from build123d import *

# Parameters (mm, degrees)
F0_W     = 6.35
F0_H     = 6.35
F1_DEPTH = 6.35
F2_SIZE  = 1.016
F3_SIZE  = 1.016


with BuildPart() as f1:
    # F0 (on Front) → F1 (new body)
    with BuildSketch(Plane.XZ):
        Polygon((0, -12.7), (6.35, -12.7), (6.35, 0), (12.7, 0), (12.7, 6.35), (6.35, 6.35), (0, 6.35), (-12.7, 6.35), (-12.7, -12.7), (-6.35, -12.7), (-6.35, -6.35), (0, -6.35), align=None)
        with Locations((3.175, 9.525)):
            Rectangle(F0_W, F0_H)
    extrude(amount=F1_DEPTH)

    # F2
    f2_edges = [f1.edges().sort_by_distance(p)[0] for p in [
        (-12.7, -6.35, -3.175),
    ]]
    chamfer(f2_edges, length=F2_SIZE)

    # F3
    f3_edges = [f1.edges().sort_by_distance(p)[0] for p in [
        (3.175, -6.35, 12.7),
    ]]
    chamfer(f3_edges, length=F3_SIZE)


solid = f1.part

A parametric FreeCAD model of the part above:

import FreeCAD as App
import Part
import Sketcher
Q = App.Units.Quantity


def edges_at(feature, points):
    """Names of the edges that pass closest to the given points."""
    edges = feature.Shape.Edges
    near = lambda p: min(range(len(edges)), key=lambda i: edges[i].distToShape(Part.Vertex(*p))[0])
    return sorted({f"Edge{near(p) + 1}" for p in points})


def add_polygon(sketch, points):
    """Adds a closed chain of lines whose ends are joined by coincident constraints."""
    first, n = sketch.GeometryCount, len(points)
    for a, b in zip(points, points[1:] + points[:1]):
        sketch.addGeometry(Part.LineSegment(App.Vector(*a, 0), App.Vector(*b, 0)), False)
    for i in range(n):
        sketch.addConstraint(Sketcher.Constraint("Coincident", first + i, 2, first + (i + 1) % n, 1))

doc = App.newDocument("Part")
body = doc.addObject("PartDesign::Body", "Body")

# Sketch on XZ plane
sketch1 = doc.addObject("Sketcher::SketchObject", "Sketch")
body.addObject(sketch1)
sketch1.AttachmentSupport = (doc.XZ_Plane, [""])
sketch1.MapMode = "FlatFace"
add_polygon(sketch1, [(0, -13), (6, -13), (6, 0), (13, 0), (13, 6), (6, 6), (6, 13), (0, 13), (0, 6), (-13, 6), (-13, -13), (-6, -13), (-6, -6), (0, -6)])  # lines 0-13
sketch1.addConstraint(Sketcher.Constraint("Horizontal", 0))
sketch1.addConstraint(Sketcher.Constraint("Vertical", 1))
sketch1.addConstraint(Sketcher.Constraint("Horizontal", 2))
sketch1.addConstraint(Sketcher.Constraint("Vertical", 3))
sketch1.addConstraint(Sketcher.Constraint("Horizontal", 4))
sketch1.addConstraint(Sketcher.Constraint("Vertical", 5))
sketch1.addConstraint(Sketcher.Constraint("Horizontal", 6))
sketch1.addConstraint(Sketcher.Constraint("Vertical", 7))
sketch1.addConstraint(Sketcher.Constraint("Horizontal", 8))
sketch1.addConstraint(Sketcher.Constraint("Vertical", 9))
sketch1.addConstraint(Sketcher.Constraint("Horizontal", 10))
sketch1.addConstraint(Sketcher.Constraint("Vertical", 11))
sketch1.addConstraint(Sketcher.Constraint("Horizontal", 12))
sketch1.addConstraint(Sketcher.Constraint("Vertical", 13))
sketch1.addConstraint(Sketcher.Constraint("Symmetric", 5, 2, 10, 2, -1, 1))
sketch1.addConstraint(Sketcher.Constraint("Symmetric", 7, 2, 12, 2, -1, 1))
sketch1.addConstraint(Sketcher.Constraint("Symmetric", 3, 2, 8, 2, -2))
sketch1.addConstraint(Sketcher.Constraint("Symmetric", 0, 2, 10, 2, -2))
sketch1.addConstraint(Sketcher.Constraint("PointOnObject", 1, 2, -1))
sketch1.addConstraint(Sketcher.Constraint("PointOnObject", 6, 2, -2))
sketch1.addConstraint(Sketcher.Constraint("Equal", 0, 2))
sketch1.addConstraint(Sketcher.Constraint("Equal", 8, 1))
sketch1.addConstraint(Sketcher.Constraint("Equal", 12, 3))
sketch1.addConstraint(Sketcher.Constraint("DistanceX", 8, 2, 8, 1, Q("0.5 in")))
pad1 = doc.addObject("PartDesign::Pad", "Pad")
body.addObject(pad1)
pad1.Profile = sketch1
pad1.Length = Q("0.25 in")
doc.recompute()

chamfer = doc.addObject("PartDesign::Chamfer", "Chamfer")
body.addObject(chamfer)
chamfer.Base = (pad1, edges_at(pad1, [(-12.7, -6.35, -3.175)]))
chamfer.Size = Q("0.04 in")
doc.recompute()

chamfer2 = doc.addObject("PartDesign::Chamfer", "Chamfer001")
body.addObject(chamfer2)
chamfer2.Base = (chamfer, edges_at(chamfer, [(3.175, -6.35, 12.7)]))
chamfer2.Size = Q("0.04 in")

doc.recompute()
